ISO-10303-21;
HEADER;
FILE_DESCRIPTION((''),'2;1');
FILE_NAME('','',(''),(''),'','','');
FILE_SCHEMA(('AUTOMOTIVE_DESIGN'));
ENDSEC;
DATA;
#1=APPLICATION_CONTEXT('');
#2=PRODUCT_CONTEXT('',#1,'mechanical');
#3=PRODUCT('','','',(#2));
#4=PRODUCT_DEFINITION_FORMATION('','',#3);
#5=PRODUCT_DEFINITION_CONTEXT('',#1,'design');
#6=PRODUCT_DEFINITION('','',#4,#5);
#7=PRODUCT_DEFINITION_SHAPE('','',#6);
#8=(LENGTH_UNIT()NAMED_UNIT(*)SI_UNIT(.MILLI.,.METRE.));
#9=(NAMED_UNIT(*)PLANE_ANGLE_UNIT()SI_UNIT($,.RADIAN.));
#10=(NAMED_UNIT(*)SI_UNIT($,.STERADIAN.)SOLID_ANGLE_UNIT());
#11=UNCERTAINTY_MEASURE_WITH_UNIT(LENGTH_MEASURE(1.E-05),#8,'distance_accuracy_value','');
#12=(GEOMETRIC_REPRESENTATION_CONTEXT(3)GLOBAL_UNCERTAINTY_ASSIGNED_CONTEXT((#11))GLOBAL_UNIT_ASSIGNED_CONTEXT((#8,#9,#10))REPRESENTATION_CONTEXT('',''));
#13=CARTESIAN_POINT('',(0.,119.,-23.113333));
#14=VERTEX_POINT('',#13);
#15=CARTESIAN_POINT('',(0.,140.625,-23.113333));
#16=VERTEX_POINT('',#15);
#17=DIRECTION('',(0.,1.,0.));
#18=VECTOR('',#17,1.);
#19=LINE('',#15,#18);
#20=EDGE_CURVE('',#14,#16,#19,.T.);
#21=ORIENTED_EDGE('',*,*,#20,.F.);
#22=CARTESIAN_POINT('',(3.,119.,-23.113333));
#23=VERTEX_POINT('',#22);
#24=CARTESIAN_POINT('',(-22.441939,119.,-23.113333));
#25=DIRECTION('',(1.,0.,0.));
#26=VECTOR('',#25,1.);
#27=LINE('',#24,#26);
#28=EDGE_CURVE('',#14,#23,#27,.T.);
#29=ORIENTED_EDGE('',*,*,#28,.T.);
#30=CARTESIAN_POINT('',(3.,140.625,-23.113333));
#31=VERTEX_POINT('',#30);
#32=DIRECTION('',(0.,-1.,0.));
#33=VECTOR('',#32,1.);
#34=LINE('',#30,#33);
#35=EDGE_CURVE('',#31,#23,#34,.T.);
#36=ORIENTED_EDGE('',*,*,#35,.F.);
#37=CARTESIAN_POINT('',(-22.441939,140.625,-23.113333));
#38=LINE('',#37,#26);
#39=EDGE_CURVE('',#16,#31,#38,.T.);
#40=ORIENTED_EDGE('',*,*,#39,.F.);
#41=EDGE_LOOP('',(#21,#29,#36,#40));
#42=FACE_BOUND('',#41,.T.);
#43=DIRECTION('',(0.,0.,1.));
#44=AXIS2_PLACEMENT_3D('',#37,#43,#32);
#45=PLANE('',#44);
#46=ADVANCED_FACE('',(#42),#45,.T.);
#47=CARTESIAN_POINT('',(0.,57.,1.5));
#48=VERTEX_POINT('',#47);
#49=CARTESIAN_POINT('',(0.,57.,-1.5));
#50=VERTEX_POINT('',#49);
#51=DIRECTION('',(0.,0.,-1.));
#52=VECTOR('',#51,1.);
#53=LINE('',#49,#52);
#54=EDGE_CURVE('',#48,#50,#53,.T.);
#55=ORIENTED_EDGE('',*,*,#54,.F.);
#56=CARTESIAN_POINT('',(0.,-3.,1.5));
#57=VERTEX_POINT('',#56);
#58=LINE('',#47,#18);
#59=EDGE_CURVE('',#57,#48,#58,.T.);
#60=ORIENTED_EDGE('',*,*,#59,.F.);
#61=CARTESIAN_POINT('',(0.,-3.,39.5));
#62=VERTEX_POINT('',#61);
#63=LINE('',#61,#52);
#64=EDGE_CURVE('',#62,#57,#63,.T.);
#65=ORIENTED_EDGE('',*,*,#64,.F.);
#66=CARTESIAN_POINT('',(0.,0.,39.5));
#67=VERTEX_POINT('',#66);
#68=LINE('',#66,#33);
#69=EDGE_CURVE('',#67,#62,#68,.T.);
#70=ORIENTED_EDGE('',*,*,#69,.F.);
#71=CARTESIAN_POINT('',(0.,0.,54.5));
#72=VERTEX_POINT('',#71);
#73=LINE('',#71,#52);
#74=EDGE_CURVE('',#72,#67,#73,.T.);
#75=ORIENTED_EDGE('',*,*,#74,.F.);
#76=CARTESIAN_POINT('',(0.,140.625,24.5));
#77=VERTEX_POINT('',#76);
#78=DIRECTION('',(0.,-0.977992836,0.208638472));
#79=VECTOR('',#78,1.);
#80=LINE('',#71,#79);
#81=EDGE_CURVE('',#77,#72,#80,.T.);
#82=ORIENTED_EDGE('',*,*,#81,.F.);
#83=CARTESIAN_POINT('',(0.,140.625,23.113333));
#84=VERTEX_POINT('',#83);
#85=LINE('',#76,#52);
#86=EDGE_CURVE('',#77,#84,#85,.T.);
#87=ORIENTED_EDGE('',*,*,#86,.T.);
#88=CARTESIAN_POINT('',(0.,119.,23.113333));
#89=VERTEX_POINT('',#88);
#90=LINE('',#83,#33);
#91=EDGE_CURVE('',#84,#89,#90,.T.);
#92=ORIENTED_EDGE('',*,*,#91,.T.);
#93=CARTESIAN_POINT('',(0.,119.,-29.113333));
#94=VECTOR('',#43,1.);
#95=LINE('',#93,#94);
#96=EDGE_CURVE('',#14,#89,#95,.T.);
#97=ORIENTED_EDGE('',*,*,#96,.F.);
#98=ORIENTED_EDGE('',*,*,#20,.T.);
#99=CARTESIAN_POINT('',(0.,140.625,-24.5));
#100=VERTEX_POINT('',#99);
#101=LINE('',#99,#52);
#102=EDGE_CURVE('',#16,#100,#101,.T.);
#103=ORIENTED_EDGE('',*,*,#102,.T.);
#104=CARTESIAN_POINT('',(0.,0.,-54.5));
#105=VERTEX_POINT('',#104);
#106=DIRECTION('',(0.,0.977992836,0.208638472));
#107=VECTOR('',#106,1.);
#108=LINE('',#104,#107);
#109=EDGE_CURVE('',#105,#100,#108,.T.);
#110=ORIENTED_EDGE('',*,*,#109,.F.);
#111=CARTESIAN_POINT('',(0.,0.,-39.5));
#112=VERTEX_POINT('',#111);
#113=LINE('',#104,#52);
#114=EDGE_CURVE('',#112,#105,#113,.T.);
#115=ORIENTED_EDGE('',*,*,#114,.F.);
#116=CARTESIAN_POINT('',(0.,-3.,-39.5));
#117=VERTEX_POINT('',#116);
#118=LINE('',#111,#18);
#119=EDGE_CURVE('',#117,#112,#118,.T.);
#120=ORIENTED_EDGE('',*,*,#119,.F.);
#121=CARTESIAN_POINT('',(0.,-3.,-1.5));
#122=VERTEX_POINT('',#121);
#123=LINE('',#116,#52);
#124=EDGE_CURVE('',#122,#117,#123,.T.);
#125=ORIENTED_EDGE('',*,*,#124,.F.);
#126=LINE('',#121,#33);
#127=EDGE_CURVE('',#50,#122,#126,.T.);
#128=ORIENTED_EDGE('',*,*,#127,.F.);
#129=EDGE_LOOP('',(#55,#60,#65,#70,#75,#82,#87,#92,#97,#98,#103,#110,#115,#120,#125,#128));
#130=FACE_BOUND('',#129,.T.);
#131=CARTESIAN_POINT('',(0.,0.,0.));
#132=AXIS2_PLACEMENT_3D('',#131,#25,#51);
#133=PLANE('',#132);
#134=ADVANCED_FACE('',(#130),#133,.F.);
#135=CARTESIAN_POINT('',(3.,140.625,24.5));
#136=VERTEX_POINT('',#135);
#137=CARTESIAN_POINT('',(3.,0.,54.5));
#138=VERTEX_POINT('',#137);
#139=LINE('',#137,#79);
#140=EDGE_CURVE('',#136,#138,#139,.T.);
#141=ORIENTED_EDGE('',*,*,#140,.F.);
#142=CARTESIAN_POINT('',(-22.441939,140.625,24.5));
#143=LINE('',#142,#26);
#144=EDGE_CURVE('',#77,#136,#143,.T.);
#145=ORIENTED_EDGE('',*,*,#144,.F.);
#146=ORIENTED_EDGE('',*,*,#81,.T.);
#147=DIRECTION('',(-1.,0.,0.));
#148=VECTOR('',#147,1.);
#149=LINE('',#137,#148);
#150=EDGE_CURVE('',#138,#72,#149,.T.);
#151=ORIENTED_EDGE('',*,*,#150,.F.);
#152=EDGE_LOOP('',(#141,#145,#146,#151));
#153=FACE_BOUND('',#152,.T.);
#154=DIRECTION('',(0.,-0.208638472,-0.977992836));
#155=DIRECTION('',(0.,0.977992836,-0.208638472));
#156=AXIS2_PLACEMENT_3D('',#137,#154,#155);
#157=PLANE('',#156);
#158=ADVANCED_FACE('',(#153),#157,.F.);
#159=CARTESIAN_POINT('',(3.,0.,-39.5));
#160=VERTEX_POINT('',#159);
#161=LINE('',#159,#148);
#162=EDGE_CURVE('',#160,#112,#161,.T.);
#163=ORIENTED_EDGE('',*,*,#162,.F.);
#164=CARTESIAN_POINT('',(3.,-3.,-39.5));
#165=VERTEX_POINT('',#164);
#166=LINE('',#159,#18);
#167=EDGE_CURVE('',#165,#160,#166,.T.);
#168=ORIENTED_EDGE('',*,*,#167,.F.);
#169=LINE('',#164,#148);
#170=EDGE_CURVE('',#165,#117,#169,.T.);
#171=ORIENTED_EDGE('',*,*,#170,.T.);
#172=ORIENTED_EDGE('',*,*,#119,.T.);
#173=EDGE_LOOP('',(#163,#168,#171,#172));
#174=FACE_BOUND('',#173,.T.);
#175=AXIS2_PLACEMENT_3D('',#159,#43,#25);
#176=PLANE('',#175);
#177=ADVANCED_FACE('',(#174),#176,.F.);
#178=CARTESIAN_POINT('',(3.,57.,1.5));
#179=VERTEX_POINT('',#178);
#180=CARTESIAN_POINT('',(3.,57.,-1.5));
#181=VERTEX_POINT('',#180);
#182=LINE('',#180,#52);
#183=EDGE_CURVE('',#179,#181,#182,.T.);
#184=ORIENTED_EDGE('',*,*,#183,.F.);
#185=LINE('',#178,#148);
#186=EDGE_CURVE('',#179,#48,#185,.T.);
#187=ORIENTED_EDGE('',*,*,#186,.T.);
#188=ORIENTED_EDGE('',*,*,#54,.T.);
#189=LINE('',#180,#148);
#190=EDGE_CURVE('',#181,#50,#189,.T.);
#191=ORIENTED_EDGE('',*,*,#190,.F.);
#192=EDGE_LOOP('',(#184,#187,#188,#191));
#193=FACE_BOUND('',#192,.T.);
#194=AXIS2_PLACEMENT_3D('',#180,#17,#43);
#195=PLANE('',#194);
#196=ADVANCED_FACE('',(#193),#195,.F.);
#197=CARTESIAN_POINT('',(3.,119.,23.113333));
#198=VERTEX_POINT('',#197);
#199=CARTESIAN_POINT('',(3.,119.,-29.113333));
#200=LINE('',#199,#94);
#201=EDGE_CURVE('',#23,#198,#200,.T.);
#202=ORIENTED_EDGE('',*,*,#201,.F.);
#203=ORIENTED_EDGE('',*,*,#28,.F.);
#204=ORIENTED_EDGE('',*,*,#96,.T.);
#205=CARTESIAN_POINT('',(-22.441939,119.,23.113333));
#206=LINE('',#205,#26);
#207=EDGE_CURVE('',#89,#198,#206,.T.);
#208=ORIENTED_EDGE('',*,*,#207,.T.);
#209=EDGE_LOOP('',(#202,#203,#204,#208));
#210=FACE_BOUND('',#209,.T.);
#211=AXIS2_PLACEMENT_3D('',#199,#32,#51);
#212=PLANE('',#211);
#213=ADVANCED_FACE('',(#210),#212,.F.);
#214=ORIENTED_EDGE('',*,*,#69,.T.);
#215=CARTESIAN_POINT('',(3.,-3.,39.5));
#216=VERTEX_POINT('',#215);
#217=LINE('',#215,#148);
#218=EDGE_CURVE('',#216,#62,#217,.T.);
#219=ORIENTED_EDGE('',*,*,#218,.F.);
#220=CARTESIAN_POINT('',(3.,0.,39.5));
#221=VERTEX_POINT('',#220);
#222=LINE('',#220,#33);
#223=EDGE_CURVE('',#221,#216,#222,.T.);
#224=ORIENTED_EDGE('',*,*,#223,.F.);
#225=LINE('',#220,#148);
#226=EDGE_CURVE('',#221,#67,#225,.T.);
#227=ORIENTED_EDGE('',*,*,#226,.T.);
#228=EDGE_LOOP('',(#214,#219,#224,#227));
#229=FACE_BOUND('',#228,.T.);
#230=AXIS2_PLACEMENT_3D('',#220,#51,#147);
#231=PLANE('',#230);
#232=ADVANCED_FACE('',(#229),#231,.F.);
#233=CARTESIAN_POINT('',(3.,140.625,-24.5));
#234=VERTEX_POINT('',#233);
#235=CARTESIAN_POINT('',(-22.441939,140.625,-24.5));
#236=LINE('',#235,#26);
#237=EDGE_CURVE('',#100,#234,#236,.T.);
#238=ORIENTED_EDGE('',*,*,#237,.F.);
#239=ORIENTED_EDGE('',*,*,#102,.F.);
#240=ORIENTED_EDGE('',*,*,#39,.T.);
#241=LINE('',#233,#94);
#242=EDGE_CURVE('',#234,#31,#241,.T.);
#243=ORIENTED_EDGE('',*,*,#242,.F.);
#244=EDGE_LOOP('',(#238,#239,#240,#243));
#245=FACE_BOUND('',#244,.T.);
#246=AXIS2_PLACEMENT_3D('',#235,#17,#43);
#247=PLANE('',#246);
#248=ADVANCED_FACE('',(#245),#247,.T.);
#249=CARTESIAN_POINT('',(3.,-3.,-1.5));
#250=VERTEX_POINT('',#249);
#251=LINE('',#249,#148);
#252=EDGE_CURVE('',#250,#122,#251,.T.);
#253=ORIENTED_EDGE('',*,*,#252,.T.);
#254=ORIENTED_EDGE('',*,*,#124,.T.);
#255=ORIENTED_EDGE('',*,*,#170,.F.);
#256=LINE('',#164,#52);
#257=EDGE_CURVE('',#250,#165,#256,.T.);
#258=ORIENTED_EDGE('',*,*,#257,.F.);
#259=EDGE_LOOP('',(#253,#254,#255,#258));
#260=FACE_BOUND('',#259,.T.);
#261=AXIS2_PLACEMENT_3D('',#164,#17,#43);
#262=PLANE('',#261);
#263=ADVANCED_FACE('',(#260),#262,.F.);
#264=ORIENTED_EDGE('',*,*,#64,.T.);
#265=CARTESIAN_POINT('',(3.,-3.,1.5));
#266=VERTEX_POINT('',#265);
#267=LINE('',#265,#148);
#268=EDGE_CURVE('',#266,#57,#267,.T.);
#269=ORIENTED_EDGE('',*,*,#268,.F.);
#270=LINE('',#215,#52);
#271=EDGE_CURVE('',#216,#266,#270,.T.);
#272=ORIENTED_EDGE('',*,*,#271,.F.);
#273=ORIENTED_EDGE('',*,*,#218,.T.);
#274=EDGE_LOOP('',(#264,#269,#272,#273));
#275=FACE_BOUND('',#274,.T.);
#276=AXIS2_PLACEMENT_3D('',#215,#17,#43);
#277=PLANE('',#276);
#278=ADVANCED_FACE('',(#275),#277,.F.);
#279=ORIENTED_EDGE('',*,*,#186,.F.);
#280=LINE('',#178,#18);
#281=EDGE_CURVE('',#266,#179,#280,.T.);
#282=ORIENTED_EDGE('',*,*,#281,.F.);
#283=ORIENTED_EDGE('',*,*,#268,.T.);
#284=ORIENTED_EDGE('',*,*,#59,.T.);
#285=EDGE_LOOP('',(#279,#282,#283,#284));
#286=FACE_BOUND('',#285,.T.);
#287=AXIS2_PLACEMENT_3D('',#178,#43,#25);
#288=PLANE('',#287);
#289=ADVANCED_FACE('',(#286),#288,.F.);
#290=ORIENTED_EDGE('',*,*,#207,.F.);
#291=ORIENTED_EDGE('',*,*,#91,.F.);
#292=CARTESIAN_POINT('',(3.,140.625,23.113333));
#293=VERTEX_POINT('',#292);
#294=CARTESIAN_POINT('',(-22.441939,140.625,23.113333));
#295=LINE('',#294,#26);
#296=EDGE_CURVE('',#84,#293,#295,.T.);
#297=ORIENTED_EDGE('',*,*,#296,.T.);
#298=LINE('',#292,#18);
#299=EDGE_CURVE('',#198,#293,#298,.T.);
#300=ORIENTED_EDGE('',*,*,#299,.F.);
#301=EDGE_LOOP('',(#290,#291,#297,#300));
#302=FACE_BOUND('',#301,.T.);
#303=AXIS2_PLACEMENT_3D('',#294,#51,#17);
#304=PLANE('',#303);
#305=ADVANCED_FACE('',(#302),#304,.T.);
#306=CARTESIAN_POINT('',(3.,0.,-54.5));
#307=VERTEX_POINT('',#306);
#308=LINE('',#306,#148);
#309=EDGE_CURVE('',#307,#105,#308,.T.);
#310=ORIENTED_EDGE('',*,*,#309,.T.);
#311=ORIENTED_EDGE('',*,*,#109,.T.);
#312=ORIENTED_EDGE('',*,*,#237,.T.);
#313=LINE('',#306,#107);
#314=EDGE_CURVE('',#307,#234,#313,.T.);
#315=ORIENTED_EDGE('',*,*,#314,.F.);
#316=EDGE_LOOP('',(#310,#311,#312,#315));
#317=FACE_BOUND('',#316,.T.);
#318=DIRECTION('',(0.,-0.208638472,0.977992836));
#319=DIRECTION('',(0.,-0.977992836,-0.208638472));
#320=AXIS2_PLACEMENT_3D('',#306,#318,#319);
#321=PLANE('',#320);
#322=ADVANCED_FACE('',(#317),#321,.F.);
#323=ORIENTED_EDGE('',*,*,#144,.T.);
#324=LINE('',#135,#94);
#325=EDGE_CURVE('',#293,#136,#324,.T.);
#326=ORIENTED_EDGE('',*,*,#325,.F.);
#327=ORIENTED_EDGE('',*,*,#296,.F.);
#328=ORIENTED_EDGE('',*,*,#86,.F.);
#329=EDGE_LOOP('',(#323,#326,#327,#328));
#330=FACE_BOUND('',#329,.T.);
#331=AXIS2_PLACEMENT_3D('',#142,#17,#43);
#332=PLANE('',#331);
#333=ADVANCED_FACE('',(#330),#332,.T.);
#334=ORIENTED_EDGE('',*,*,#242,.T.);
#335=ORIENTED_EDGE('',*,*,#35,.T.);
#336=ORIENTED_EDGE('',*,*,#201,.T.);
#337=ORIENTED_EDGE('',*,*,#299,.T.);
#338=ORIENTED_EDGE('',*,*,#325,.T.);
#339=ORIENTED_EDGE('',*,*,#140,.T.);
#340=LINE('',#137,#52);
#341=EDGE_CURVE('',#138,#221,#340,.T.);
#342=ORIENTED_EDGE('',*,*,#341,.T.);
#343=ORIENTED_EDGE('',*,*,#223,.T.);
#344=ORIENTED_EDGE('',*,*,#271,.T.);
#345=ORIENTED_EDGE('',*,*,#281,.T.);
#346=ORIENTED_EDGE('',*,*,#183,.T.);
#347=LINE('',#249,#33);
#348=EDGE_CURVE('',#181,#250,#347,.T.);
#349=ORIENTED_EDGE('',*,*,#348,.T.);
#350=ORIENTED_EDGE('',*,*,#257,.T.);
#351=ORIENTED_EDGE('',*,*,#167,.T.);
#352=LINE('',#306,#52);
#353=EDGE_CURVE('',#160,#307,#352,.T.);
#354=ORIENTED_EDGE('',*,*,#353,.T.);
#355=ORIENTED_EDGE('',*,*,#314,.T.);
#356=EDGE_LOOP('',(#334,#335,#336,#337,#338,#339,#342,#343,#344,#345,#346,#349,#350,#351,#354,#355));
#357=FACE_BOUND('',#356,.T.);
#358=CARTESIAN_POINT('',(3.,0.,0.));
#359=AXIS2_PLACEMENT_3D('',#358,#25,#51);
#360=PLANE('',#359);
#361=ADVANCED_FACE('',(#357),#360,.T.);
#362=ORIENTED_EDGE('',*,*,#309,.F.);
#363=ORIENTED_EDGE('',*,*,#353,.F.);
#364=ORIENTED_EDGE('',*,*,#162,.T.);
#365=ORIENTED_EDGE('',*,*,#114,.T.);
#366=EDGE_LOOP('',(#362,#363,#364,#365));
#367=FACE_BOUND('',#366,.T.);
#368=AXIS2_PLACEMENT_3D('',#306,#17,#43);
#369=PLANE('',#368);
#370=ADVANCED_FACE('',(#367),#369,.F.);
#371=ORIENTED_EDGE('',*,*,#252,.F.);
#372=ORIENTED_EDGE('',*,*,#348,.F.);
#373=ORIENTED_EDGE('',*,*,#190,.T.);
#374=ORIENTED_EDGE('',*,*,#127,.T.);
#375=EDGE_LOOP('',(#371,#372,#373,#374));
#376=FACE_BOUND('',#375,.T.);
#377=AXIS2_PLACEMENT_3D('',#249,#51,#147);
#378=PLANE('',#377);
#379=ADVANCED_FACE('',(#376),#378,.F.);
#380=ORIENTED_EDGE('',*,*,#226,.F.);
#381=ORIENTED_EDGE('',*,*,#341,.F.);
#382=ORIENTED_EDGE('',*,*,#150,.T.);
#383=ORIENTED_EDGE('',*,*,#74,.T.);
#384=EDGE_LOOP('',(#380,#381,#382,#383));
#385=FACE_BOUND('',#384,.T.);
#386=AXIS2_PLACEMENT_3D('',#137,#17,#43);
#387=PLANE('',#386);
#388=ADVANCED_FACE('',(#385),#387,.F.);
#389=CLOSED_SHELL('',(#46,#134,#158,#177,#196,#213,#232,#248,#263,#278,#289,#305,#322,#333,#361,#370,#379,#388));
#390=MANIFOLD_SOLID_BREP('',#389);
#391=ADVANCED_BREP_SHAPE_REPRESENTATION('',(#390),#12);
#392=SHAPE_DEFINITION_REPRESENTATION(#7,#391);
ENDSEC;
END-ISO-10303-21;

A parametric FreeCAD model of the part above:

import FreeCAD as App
import Part
import Sketcher
from FreeCAD import Vector
Q = App.Units.Quantity

doc = App.newDocument("Part")
body = doc.addObject("PartDesign::Body", "Body")

sketch1 = body.newObject("Sketcher::SketchObject", "Sketch")
sketch1.AttachmentSupport = (doc.getObject("YZ_Plane"), [""])
sketch1.MapMode = "FlatFace"
sketch1.addGeometry([
    Part.LineSegment(Vector(0, -54.5, 0), Vector(119, -29.1, 0)),
    Part.LineSegment(Vector(119, -29.1, 0), Vector(119, 29.1, 0)),
    Part.LineSegment(Vector(119, 29.1, 0), Vector(0, 54.5, 0)),
    Part.LineSegment(Vector(0, 54.5, 0), Vector(0, 39.5, 0)),
    Part.LineSegment(Vector(0, 39.5, 0), Vector(-3, 39.5, 0)),
    Part.LineSegment(Vector(-3, 39.5, 0), Vector(-3, 1.5, 0)),
    Part.LineSegment(Vector(-3, 1.5, 0), Vector(57, 1.5, 0)),
    Part.LineSegment(Vector(57, 1.5, 0), Vector(57, -1.5, 0)),
    Part.LineSegment(Vector(57, -1.5, 0), Vector(-3, -1.5, 0)),
    Part.LineSegment(Vector(-3, -1.5, 0), Vector(-3, -39.5, 0)),
    Part.LineSegment(Vector(-3, -39.5, 0), Vector(0, -39.5, 0)),
    Part.LineSegment(Vector(0, -39.5, 0), Vector(0, -54.5, 0)),
], False)
sketch1.addConstraint([
    Sketcher.Constraint("Coincident", 0, 2, 1, 1),
    Sketcher.Constraint("Coincident", 1, 2, 2, 1),
    Sketcher.Constraint("Coincident", 2, 2, 3, 1),
    Sketcher.Constraint("Coincident", 3, 2, 4, 1),
    Sketcher.Constraint("Coincident", 4, 2, 5, 1),
    Sketcher.Constraint("Coincident", 5, 2, 6, 1),
    Sketcher.Constraint("Coincident", 6, 2, 7, 1),
    Sketcher.Constraint("Coincident", 7, 2, 8, 1),
    Sketcher.Constraint("Coincident", 8, 2, 9, 1),
    Sketcher.Constraint("Coincident", 9, 2, 10, 1),
    Sketcher.Constraint("Coincident", 10, 2, 11, 1),
    Sketcher.Constraint("Coincident", 11, 2, 0, 1),
    Sketcher.Constraint("Vertical", 1),
    Sketcher.Constraint("Vertical", 3),
    Sketcher.Constraint("Horizontal", 4),
    Sketcher.Constraint("Vertical", 5),
    Sketcher.Constraint("Horizontal", 6),
    Sketcher.Constraint("Vertical", 7),
    Sketcher.Constraint("Horizontal", 8),
    Sketcher.Constraint("Vertical", 9),
    Sketcher.Constraint("Horizontal", 10),
    Sketcher.Constraint("Vertical", 11),
    Sketcher.Constraint("Symmetric", 3, 2, 10, 2, -1, 1),
    Sketcher.Constraint("Symmetric", 5, 2, 8, 2, -1),
    Sketcher.Constraint("Symmetric", 2, 2, 11, 2, -1),
    Sketcher.Constraint("Equal", 10, 7),
    Sketcher.Constraint("Equal", 0, 2),
    Sketcher.Constraint("DistanceX", 4, 2, 4, 1, Q("3 mm")),
    Sketcher.Constraint("DistanceX", 6, 1, 6, 2, Q("60 mm")),
    Sketcher.Constraint("DistanceY", 3, 2, 3, 1, Q("15 mm")),
    Sketcher.Constraint("DistanceY", 5, 2, 5, 1, Q("38 mm")),
    Sketcher.Constraint("DistanceX", -1, 1, 0, 2, Q("119 mm")),
    Sketcher.Constraint("DistanceY", 1, 1, 1, 2, Q("58.226667 mm")),
])
pad1 = body.newObject("PartDesign::Pad", "Pad")
pad1.Profile = sketch1
pad1.Length = 3

sketch2 = body.newObject("Sketcher::SketchObject", "Sketch001")
sketch2.AttachmentSupport = (doc.getObject("YZ_Plane"), [""])
sketch2.MapMode = "FlatFace"
sketch2.AttachmentOffset = App.Placement(Vector(0, 0, 3), App.Rotation())
sketch2.addGeometry([
    Part.LineSegment(Vector(140.6, 24.5, 0), Vector(119, 29.1, 0)),
    Part.LineSegment(Vector(119, 29.1, 0), Vector(119, 23.1, 0)),
    Part.LineSegment(Vector(119, 23.1, 0), Vector(140.6, 23.1, 0)),
    Part.LineSegment(Vector(140.6, 23.1, 0), Vector(140.6, 24.5, 0)),
    Part.LineSegment(Vector(119, -29.1, 0), Vector(140.6, -24.5, 0)),
    Part.LineSegment(Vector(140.6, -24.5, 0), Vector(140.6, -23.1, 0)),
    Part.LineSegment(Vector(140.6, -23.1, 0), Vector(119, -23.1, 0)),
    Part.LineSegment(Vector(119, -23.1, 0), Vector(119, -29.1, 0)),
], False)
sketch2.addConstraint([
    Sketcher.Constraint("Coincident", 0, 2, 1, 1),
    Sketcher.Constraint("Coincident", 1, 2, 2, 1),
    Sketcher.Constraint("Coincident", 2, 2, 3, 1),
    Sketcher.Constraint("Coincident", 3, 2, 0, 1),
    Sketcher.Constraint("Coincident", 4, 2, 5, 1),
    Sketcher.Constraint("Coincident", 5, 2, 6, 1),
    Sketcher.Constraint("Coincident", 6, 2, 7, 1),
    Sketcher.Constraint("Coincident", 7, 2, 4, 1),
    Sketcher.Constraint("Vertical", 1),
    Sketcher.Constraint("Horizontal", 2),
    Sketcher.Constraint("Vertical", 3),
    Sketcher.Constraint("Vertical", 5),
    Sketcher.Constraint("Horizontal", 6),
    Sketcher.Constraint("Vertical", 7),
    Sketcher.Constraint("Symmetric", 3, 2, 4, 2, -1),
    Sketcher.Constraint("Symmetric", 1, 2, 6, 2, -1),
    Sketcher.Constraint("Equal", 1, 7),
    Sketcher.Constraint("DistanceY", 1, 2, 1, 1, Q("6 mm")),
    Sketcher.Constraint("DistanceX", -1, 1, 0, 2, Q("119 mm")),
    Sketcher.Constraint("DistanceY", 4, 2, 3, 2, Q("49 mm")),
    Sketcher.Constraint("DistanceX", 2, 1, 2, 2, Q("21.625 mm")),
    Sketcher.Constraint("DistanceY", 3, 1, 3, 2, Q("1.386667 mm")),
])
pad2 = body.newObject("PartDesign::Pad", "Pad001")
pad2.Profile = sketch2
pad2.Length = 3
pad2.Reversed = True

doc.recompute()
